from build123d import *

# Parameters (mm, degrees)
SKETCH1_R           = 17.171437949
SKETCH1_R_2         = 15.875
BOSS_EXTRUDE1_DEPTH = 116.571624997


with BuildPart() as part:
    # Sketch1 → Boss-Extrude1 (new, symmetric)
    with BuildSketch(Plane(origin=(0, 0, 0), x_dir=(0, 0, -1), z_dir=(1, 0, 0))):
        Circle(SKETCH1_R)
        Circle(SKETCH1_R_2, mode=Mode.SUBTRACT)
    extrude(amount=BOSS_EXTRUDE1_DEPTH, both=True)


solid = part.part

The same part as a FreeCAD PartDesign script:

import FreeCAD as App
import Part
import Sketcher
Q = App.Units.Quantity

doc = App.newDocument("Part")
params = doc.addObject("Spreadsheet::Sheet", "Params")
for row, (alias, value) in enumerate([
    ("sketch1_diameter", "1.25 in"),
    ("pad1_length", "233.14325 mm"),
], start=1):
    params.set(f"A{row}", alias)
    params.set(f"B{row}", "=" + value)
    params.setAlias(f"B{row}", alias)

body = doc.addObject("PartDesign::Body", "Body")

# Sketch on YZ plane
sketch1 = body.newObject("Sketcher::SketchObject", "Sketch")
sketch1.AttachmentSupport = (doc.getObject("YZ_Plane"), [""])
sketch1.MapMode = "FlatFace"
sketch1.addGeometry(Part.Circle(App.Vector(0, 0, 0), App.Vector(0, 0, 1), 17), False)
sketch1.addGeometry(Part.Circle(App.Vector(0, 0, 0), App.Vector(0, 0, 1), 16), False)
sketch1.addConstraint(Sketcher.Constraint("Coincident", 0, 3, -1, 1))
sketch1.addConstraint(Sketcher.Constraint("Coincident", 1, 3, -1, 1))
sketch1.addConstraint(Sketcher.Constraint("Diameter", 1, Q("1.25 in")))
sketch1.addConstraint(Sketcher.Constraint("Diameter", 0, Q("34.342876 mm")))
sketch1.setExpression("Constraints[2]", "Params.sketch1_diameter")
pad1 = body.newObject("PartDesign::Pad", "Pad")
pad1.Profile = sketch1
pad1.setExpression("Length", "Params.pad1_length")
pad1.Midplane = True

doc.recompute()
